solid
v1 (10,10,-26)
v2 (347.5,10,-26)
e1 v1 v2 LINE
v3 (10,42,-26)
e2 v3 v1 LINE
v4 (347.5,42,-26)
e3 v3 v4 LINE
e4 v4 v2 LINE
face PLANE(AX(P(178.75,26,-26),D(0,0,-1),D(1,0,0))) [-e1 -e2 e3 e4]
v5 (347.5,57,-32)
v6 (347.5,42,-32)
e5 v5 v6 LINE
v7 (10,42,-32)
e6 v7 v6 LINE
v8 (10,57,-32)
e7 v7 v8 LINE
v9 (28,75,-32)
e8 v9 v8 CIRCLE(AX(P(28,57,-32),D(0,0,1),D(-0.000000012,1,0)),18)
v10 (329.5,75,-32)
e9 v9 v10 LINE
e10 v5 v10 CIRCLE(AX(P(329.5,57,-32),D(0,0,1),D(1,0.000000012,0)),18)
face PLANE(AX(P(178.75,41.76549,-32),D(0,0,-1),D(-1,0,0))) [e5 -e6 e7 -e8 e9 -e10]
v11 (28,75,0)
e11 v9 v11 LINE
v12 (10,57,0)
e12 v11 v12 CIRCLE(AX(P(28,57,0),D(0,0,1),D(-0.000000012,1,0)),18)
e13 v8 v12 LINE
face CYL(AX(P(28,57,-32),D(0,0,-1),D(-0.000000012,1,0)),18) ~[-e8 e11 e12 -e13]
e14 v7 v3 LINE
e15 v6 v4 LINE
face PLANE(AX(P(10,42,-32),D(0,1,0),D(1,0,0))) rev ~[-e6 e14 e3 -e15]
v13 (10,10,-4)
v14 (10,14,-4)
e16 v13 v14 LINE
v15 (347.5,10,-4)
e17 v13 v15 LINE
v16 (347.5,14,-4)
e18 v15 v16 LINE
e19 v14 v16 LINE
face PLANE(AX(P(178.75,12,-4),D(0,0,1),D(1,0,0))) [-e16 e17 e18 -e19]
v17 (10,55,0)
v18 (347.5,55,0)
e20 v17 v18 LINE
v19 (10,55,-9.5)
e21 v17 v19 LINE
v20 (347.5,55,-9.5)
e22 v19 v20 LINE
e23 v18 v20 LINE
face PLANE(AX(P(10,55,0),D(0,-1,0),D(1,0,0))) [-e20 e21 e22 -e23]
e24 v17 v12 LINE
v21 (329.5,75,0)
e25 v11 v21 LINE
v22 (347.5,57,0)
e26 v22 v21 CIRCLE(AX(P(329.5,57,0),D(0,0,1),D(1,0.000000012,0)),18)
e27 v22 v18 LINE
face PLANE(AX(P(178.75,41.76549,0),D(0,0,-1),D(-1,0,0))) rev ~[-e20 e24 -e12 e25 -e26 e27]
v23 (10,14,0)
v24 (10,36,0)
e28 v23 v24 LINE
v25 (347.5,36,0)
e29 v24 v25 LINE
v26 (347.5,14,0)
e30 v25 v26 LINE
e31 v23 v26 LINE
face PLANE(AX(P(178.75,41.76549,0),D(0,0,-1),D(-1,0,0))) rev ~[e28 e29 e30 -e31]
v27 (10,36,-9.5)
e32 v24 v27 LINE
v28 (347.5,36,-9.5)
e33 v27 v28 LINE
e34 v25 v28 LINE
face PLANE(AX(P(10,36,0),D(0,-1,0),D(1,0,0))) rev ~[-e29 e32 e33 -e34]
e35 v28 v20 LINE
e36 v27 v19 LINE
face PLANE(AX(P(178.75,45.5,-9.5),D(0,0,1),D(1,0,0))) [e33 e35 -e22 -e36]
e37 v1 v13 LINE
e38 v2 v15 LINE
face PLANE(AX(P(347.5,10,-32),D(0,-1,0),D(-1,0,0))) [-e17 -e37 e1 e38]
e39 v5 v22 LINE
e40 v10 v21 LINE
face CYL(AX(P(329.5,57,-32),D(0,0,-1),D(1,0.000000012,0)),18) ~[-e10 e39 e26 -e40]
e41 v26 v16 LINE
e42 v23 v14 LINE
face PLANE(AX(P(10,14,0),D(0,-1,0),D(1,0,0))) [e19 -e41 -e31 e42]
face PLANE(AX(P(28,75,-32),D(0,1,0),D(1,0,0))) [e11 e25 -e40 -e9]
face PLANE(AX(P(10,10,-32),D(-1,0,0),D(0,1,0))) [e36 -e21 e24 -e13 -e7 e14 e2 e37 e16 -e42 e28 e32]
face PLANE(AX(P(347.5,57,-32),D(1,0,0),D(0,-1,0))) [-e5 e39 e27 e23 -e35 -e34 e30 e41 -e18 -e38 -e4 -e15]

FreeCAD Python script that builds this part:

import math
import FreeCAD as App
import Part
import Sketcher

V = App.Vector

doc = App.newDocument("Part")
params = doc.addObject("Spreadsheet::Sheet", "Params")
for row, (alias, value) in enumerate([
    ("sketch1_radius", "18 mm"),
    ("sketch1_height", "47 mm"),
    ("sketch1_width", "301.5 mm"),
    ("pad1_length", "32 mm"),
    ("sketch2_height", "19 mm"),
    ("sketch2_width", "337.5 mm"),
    ("pocket1_length", "9.5 mm"),
    ("sketch3_height", "4 mm"),
    ("sketch3_width", "337.5 mm"),
    ("pocket2_length", "4 mm"),
    ("sketch4_height", "32 mm"),
    ("sketch4_width", "337.5 mm"),
    ("pocket3_length", "6 mm"),
], start=1):
    params.set(f"A{row}", alias)
    params.set(f"B{row}", "=" + value)
    params.setAlias(f"B{row}", alias)

body = doc.addObject("PartDesign::Body", "Body")

# Sketch on XY plane
sketch1 = body.newObject("Sketcher::SketchObject", "Sketch")
sketch1.AttachmentSupport = (doc.getObject("XY_Plane"), [""])
sketch1.MapMode = "FlatFace"
sketch1.addGeometry([
    Part.LineSegment(V(319.5, 65, 0), V(18, 65, 0)),  # 0
    Part.ArcOfCircle(Part.Circle(V(18, 47, 0), V(0, 0, 1), 18), math.radians(90.000001), math.radians(179.999999)),  # 1
    Part.LineSegment(V(0, 47, 0), V(0, 0, 0)),  # 2
    Part.LineSegment(V(0, 0, 0), V(337.5, 0, 0)),  # 3
    Part.LineSegment(V(337.5, 0, 0), V(337.5, 47, 0)),  # 4
    Part.ArcOfCircle(Part.Circle(V(319.5, 47, 0), V(0, 0, 1), 18), math.radians(0.000001), math.radians(89.999999)),  # 5
], False)
sketch1.addConstraint([
    Sketcher.Constraint("Tangent", 0, 2, 1, 1),
    Sketcher.Constraint("Tangent", 1, 2, 2, 1),
    Sketcher.Constraint("Coincident", 2, 2, 3, 1),
    Sketcher.Constraint("Coincident", 3, 2, 4, 1),
    Sketcher.Constraint("Tangent", 4, 2, 5, 1),
    Sketcher.Constraint("Tangent", 5, 2, 0, 1),
    Sketcher.Constraint("Horizontal", 0),
    Sketcher.Constraint("Vertical", 2),
    Sketcher.Constraint("Horizontal", 3),
    Sketcher.Constraint("Vertical", 4),
    Sketcher.Constraint("Coincident", 2, 2, -1, 1),
    Sketcher.Constraint("Equal", 1, 5),
    Sketcher.Constraint("Radius", 1, 18.0),
    Sketcher.Constraint("DistanceY", 2, 2, 2, 1, 47.0),
    Sketcher.Constraint("DistanceX", 0, 2, 0, 1, 301.5),
])
sketch1.setExpression("Constraints[12]", "Params.sketch1_radius")
sketch1.setExpression("Constraints[13]", "Params.sketch1_height")
sketch1.setExpression("Constraints[14]", "Params.sketch1_width")
pad1 = body.newObject("PartDesign::Pad", "Pad")
pad1.Profile = sketch1
pad1.setExpression("Length", "Params.pad1_length")

# Sketch on XY plane
sketch2 = body.newObject("Sketcher::SketchObject", "Sketch001")
sketch2.AttachmentSupport = (doc.getObject("XY_Plane"), [""])
sketch2.MapMode = "FlatFace"
sketch2.AttachmentOffset = App.Placement(V(0, 0, 32), App.Rotation())
sketch2.addGeometry([
    Part.LineSegment(V(0, 45, 0), V(0, 26, 0)),
    Part.LineSegment(V(0, 26, 0), V(337.5, 26, 0)),
    Part.LineSegment(V(337.5, 26, 0), V(337.5, 45, 0)),
    Part.LineSegment(V(337.5, 45, 0), V(0, 45, 0)),
], False)
sketch2.addConstraint([
    Sketcher.Constraint("Coincident", 0, 2, 1, 1),
    Sketcher.Constraint("Coincident", 1, 2, 2, 1),
    Sketcher.Constraint("Coincident", 2, 2, 3, 1),
    Sketcher.Constraint("Coincident", 3, 2, 0, 1),
    Sketcher.Constraint("Vertical", 0),
    Sketcher.Constraint("Horizontal", 1),
    Sketcher.Constraint("Vertical", 2),
    Sketcher.Constraint("Horizontal", 3),
    Sketcher.Constraint("PointOnObject", 0, 2, -2),
    Sketcher.Constraint("DistanceY", 0, 2, 0, 1, 19.0),
    Sketcher.Constraint("DistanceX", 1, 1, 1, 2, 337.5),
    Sketcher.Constraint("DistanceY", -1, 1, 0, 2, 26.0),
])
sketch2.setExpression("Constraints[9]", "Params.sketch2_height")
sketch2.setExpression("Constraints[10]", "Params.sketch2_width")
pocket1 = body.newObject("PartDesign::Pocket", "Pocket")
pocket1.Profile = sketch2
pocket1.setExpression("Length", "Params.pocket1_length")

# Sketch on XY plane
sketch3 = body.newObject("Sketcher::SketchObject", "Sketch002")
sketch3.AttachmentSupport = (doc.getObject("XY_Plane"), [""])
sketch3.MapMode = "FlatFace"
sketch3.AttachmentOffset = App.Placement(V(0, 0, 32), App.Rotation())
sketch3.addGeometry([
    Part.LineSegment(V(0, 4, 0), V(0, 0, 0)),
    Part.LineSegment(V(0, 0, 0), V(337.5, 0, 0)),
    Part.LineSegment(V(337.5, 0, 0), V(337.5, 4, 0)),
    Part.LineSegment(V(337.5, 4, 0), V(0, 4, 0)),
], False)
sketch3.addConstraint([
    Sketcher.Constraint("Coincident", 0, 2, 1, 1),
    Sketcher.Constraint("Coincident", 1, 2, 2, 1),
    Sketcher.Constraint("Coincident", 2, 2, 3, 1),
    Sketcher.Constraint("Coincident", 3, 2, 0, 1),
    Sketcher.Constraint("Vertical", 0),
    Sketcher.Constraint("Horizontal", 1),
    Sketcher.Constraint("Vertical", 2),
    Sketcher.Constraint("Horizontal", 3),
    Sketcher.Constraint("Coincident", 0, 2, -1, 1),
    Sketcher.Constraint("DistanceY", 0, 2, 0, 1, 4.0),
    Sketcher.Constraint("DistanceX", 1, 1, 1, 2, 337.5),
])
sketch3.setExpression("Constraints[9]", "Params.sketch3_height")
sketch3.setExpression("Constraints[10]", "Params.sketch3_width")
pocket2 = body.newObject("PartDesign::Pocket", "Pocket001")
pocket2.Profile = sketch3
pocket2.setExpression("Length", "Params.pocket2_length")

# Sketch on XY plane
sketch4 = body.newObject("Sketcher::SketchObject", "Sketch003")
sketch4.AttachmentSupport = (doc.getObject("XY_Plane"), [""])
sketch4.MapMode = "FlatFace"
sketch4.addGeometry([
    Part.LineSegment(V(0, 0, 0), V(0, 32, 0)),
    Part.LineSegment(V(0, 32, 0), V(337.5, 32, 0)),
    Part.LineSegment(V(337.5, 32, 0), V(337.5, 0, 0)),
    Part.LineSegment(V(337.5, 0, 0), V(0, 0, 0)),
], False)
sketch4.addConstraint([
    Sketcher.Constraint("Coincident", 0, 2, 1, 1),
    Sketcher.Constraint("Coincident", 1, 2, 2, 1),
    Sketcher.Constraint("Coincident", 2, 2, 3, 1),
    Sketcher.Constraint("Coincident", 3, 2, 0, 1),
    Sketcher.Constraint("Vertical", 0),
    Sketcher.Constraint("Horizontal", 1),
    Sketcher.Constraint("Vertical", 2),
    Sketcher.Constraint("Horizontal", 3),
    Sketcher.Constraint("Coincident", 3, 2, -1, 1),
    Sketcher.Constraint("DistanceY", 0, 1, 0, 2, 32.0),
    Sketcher.Constraint("DistanceX", 1, 1, 1, 2, 337.5),
])
sketch4.setExpression("Constraints[9]", "Params.sketch4_height")
sketch4.setExpression("Constraints[10]", "Params.sketch4_width")
pocket3 = body.newObject("PartDesign::Pocket", "Pocket002")
pocket3.Profile = sketch4
pocket3.setExpression("Length", "Params.pocket3_length")
pocket3.Reversed = True
body2 = doc.addObject("PartDesign::Body", "Body001")
doc.recompute()

body.Placement = App.Placement(V(10, 10, -32), App.Rotation(V(0, 0, 1), 0))
boolean = body2.newObject("PartDesign::Boolean", "Boolean")
boolean.Type = "Fuse"
boolean.addObjects([body])

doc.recompute()
